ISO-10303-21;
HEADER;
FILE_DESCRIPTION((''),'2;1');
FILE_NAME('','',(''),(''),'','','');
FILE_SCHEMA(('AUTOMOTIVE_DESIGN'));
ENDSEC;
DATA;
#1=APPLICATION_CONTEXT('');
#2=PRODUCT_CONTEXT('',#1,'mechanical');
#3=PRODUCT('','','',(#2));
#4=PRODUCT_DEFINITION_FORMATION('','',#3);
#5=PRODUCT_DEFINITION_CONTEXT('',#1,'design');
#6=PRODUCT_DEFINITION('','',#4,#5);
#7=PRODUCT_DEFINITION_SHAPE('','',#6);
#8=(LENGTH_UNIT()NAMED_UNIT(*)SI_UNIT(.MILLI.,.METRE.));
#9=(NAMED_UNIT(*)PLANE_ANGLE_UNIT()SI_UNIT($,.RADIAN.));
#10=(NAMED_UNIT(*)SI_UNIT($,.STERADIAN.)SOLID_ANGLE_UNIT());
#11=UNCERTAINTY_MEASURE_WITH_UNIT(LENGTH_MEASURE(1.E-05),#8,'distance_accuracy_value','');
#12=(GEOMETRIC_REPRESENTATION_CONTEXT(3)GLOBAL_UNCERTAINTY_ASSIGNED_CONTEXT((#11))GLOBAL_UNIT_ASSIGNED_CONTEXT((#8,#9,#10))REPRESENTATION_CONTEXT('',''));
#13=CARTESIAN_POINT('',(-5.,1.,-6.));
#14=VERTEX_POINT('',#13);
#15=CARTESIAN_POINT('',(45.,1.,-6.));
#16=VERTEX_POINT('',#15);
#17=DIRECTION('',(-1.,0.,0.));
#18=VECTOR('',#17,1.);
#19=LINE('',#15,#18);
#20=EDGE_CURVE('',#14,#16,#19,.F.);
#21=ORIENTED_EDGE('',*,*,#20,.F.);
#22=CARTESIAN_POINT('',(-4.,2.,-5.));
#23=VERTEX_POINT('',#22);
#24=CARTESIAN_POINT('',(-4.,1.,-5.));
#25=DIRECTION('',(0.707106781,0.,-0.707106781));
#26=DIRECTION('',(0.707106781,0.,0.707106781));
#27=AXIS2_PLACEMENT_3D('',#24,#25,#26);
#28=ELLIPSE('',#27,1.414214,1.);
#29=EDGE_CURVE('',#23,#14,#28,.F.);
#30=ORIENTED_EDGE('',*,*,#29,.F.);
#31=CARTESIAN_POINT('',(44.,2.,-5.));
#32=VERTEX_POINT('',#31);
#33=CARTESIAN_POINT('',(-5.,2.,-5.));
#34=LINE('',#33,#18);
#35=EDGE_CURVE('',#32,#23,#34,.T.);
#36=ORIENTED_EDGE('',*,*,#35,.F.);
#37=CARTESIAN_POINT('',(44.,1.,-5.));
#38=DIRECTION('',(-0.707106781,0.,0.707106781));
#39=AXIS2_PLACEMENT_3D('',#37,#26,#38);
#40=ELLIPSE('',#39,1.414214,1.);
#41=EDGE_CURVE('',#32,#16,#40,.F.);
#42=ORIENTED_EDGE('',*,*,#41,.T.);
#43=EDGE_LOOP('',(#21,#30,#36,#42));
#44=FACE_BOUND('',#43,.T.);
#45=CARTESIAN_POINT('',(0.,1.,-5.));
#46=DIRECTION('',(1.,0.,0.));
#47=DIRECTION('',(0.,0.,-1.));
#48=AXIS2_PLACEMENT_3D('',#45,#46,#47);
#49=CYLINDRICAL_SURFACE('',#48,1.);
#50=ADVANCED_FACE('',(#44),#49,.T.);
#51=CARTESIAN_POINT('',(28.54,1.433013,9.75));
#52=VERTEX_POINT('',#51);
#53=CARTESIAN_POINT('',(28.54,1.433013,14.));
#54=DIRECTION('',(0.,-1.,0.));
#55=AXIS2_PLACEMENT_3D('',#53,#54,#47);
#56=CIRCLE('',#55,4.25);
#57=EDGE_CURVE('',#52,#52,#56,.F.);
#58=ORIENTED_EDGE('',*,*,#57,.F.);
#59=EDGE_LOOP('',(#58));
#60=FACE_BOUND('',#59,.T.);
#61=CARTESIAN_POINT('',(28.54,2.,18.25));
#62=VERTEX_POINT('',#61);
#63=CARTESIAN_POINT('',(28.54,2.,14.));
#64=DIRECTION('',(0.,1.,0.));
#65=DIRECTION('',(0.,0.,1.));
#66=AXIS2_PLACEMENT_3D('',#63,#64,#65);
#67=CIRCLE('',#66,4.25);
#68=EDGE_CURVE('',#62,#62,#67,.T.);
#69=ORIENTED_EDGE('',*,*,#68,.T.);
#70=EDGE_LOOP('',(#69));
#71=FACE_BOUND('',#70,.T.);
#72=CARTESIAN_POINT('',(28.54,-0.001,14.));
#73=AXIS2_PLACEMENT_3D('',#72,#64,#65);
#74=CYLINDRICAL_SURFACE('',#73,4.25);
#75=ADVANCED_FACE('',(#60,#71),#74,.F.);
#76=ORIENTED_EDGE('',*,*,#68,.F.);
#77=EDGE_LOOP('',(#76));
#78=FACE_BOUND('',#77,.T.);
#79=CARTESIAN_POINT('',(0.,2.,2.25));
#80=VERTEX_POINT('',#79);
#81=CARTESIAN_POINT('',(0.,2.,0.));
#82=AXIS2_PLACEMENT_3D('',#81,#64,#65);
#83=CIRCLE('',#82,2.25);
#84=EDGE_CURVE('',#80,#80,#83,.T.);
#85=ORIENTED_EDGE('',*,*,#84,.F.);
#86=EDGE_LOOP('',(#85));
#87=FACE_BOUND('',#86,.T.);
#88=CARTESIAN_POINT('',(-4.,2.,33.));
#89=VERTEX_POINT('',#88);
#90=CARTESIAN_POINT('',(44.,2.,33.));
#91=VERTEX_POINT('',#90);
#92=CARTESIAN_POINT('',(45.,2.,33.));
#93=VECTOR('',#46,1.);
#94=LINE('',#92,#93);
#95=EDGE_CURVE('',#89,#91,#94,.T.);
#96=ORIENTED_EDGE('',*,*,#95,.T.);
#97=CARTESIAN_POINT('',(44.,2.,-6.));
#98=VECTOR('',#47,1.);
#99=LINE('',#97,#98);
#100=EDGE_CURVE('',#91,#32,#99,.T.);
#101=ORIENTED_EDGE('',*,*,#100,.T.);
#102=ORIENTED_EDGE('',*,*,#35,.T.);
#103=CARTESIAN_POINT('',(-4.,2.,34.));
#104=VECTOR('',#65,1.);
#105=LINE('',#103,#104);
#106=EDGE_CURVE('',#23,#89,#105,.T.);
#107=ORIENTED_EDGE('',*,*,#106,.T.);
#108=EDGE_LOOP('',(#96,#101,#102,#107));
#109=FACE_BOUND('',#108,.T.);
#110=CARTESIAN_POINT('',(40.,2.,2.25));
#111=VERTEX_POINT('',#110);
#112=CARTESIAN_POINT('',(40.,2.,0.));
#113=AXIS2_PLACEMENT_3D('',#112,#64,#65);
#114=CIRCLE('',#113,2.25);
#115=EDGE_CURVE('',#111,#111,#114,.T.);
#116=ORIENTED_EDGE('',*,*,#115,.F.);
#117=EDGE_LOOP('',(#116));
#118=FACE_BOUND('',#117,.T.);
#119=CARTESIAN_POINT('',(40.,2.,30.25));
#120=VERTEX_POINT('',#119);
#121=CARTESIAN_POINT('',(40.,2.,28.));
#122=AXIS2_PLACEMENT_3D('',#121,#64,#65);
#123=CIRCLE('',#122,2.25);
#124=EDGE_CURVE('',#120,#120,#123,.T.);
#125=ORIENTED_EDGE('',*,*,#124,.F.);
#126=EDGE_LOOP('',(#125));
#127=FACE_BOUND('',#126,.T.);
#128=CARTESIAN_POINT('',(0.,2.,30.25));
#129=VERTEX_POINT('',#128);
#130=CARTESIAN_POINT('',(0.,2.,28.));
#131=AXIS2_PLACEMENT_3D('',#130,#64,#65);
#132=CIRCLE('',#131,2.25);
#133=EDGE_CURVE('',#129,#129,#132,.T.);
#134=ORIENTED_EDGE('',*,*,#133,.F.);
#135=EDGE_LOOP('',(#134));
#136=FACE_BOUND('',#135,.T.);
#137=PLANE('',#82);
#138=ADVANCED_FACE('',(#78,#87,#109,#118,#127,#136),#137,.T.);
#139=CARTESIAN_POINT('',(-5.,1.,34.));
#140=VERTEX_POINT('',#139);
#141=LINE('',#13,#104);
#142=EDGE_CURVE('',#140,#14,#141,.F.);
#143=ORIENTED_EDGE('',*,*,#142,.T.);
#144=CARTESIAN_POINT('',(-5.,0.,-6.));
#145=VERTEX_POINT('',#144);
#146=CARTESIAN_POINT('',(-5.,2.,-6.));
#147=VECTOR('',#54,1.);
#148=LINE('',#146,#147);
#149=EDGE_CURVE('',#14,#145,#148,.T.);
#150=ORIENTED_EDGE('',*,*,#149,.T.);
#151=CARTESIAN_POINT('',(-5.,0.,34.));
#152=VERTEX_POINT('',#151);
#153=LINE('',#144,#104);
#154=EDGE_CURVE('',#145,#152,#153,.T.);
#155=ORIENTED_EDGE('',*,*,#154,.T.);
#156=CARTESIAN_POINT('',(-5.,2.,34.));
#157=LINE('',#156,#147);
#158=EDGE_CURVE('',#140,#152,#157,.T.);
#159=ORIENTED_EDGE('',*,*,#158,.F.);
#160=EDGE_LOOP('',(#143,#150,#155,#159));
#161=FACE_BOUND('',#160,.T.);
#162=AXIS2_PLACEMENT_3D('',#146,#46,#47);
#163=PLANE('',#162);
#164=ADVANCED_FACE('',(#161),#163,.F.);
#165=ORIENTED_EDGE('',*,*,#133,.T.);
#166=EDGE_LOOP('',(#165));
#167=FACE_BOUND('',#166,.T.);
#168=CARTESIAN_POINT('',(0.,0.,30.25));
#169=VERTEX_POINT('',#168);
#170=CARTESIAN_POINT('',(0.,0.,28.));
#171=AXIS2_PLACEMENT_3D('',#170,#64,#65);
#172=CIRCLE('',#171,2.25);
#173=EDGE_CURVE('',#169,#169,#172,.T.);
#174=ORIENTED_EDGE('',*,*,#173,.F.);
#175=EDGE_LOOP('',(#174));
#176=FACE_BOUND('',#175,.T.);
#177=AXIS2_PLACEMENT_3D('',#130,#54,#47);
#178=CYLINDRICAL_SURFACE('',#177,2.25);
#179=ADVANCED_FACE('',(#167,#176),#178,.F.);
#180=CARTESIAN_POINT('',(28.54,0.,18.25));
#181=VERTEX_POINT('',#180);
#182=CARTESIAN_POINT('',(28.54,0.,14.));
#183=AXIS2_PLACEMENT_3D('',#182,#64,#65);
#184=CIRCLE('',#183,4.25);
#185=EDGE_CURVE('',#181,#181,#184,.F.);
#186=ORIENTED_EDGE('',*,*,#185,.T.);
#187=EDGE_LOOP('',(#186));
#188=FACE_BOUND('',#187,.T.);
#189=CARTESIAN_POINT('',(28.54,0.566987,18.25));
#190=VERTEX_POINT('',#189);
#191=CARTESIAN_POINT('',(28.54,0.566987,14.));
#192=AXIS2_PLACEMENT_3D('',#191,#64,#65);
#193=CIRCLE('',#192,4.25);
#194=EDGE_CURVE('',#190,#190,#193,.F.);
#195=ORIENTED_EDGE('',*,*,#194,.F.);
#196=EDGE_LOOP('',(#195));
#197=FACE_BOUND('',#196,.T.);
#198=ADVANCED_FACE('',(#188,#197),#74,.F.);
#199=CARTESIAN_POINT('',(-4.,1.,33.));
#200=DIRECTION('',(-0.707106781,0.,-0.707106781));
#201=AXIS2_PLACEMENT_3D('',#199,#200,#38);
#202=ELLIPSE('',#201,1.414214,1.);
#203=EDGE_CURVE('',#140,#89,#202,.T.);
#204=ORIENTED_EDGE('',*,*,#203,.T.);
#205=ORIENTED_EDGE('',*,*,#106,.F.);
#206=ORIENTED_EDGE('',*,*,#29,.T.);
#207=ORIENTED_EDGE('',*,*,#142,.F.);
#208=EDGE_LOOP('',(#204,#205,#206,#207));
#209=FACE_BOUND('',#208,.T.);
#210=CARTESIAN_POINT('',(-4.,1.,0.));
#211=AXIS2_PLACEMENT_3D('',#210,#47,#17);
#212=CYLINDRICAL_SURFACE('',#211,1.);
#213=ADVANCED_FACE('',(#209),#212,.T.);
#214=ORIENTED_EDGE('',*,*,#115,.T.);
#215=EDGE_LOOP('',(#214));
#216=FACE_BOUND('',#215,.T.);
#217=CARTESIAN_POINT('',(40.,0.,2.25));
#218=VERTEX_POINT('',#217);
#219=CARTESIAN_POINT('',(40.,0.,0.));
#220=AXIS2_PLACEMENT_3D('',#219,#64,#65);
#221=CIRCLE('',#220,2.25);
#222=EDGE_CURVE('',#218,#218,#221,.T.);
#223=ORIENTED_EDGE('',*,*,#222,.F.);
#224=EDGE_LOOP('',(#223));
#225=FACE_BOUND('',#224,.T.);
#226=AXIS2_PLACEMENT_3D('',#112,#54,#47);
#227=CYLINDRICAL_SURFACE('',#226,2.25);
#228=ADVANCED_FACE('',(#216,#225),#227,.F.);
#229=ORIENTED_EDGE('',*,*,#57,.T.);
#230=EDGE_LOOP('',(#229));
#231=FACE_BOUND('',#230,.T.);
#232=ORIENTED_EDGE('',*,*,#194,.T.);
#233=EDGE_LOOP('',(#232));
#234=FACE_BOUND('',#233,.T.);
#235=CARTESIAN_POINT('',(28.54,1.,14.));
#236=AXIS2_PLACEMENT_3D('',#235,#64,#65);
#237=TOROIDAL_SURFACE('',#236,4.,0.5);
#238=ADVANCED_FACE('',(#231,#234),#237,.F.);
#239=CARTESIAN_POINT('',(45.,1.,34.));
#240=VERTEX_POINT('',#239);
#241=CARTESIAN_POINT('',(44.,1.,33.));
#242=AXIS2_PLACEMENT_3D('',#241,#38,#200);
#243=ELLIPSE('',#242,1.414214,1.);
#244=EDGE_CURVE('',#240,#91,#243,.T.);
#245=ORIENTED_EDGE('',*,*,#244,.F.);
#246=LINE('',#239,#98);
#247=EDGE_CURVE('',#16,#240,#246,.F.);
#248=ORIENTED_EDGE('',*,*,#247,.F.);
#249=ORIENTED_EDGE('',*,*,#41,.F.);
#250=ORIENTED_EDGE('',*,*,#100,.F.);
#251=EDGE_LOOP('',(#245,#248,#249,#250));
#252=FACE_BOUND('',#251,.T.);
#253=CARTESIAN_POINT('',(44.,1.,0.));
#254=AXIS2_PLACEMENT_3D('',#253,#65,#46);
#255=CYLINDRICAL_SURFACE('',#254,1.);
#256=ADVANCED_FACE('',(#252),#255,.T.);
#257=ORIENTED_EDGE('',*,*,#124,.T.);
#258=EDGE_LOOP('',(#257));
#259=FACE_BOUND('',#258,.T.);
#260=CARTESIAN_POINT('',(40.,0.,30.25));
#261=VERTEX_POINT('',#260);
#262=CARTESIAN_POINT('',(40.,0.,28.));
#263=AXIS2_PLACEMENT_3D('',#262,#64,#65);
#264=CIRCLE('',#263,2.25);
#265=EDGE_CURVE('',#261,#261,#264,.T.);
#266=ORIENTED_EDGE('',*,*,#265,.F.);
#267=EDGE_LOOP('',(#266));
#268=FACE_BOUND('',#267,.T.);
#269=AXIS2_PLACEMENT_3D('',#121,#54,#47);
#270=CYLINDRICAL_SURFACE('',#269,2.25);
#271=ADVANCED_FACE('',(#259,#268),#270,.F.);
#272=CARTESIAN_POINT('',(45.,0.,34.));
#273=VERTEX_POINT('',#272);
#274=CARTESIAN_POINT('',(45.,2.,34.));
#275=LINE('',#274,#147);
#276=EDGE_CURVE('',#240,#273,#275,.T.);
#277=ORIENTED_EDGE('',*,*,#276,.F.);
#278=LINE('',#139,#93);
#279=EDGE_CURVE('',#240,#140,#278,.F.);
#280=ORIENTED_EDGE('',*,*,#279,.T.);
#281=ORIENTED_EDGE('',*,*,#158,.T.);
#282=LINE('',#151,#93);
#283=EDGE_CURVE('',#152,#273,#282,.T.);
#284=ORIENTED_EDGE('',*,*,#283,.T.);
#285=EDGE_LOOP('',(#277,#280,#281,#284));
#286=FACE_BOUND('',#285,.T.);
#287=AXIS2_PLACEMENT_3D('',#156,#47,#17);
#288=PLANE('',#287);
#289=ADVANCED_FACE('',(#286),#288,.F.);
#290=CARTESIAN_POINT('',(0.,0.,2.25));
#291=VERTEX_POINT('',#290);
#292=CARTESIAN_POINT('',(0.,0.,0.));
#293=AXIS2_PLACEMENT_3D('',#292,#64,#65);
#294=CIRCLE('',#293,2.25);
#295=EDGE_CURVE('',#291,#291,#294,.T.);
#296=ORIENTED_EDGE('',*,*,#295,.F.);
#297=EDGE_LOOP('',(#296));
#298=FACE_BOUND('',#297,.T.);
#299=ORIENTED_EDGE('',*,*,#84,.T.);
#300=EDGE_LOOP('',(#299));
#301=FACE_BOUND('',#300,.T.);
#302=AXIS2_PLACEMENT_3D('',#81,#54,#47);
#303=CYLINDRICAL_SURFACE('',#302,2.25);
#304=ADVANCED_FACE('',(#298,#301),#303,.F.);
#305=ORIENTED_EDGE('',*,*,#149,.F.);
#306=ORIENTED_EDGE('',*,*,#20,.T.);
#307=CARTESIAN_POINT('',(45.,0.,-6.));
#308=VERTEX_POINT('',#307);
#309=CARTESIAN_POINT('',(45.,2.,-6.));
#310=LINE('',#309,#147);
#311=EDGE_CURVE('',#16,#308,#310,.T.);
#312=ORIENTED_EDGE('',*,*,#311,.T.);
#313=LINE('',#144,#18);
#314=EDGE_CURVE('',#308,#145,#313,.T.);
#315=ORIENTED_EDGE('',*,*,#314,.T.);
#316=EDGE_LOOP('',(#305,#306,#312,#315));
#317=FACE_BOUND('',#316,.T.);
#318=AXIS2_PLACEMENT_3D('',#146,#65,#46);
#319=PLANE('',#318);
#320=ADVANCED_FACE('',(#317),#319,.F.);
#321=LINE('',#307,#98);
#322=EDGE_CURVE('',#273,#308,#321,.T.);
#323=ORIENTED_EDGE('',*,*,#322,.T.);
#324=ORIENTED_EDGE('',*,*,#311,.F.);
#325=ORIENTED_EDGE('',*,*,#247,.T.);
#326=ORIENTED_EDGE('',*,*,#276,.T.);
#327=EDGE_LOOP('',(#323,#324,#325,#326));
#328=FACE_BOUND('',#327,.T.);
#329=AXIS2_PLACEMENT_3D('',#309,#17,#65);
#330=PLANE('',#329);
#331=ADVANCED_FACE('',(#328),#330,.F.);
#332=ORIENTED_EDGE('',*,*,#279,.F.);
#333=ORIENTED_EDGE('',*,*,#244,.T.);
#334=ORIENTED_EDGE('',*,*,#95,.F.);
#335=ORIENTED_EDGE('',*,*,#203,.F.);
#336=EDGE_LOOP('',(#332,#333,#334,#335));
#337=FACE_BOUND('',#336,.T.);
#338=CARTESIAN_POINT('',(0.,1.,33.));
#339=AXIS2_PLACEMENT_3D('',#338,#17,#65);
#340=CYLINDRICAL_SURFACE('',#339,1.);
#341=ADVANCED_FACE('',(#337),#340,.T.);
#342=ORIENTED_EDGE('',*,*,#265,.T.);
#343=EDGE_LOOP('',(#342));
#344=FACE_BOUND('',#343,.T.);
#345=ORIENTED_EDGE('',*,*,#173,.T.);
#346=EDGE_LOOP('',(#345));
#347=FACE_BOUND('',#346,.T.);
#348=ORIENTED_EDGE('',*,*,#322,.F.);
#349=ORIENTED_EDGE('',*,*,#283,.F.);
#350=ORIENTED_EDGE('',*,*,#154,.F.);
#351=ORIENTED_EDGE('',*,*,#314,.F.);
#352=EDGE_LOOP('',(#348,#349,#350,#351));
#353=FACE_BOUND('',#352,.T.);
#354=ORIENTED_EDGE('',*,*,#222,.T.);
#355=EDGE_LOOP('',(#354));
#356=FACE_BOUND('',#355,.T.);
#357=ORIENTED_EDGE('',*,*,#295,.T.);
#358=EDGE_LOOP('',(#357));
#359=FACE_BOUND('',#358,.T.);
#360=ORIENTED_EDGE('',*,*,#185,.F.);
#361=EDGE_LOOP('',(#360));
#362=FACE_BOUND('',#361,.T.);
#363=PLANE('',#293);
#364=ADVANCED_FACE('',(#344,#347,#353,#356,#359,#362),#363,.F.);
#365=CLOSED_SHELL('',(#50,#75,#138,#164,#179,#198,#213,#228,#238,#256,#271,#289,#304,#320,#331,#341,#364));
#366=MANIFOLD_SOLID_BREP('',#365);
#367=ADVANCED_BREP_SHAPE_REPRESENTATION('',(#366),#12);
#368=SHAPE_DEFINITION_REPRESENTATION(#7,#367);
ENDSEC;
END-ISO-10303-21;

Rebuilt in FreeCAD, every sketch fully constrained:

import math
import FreeCAD as App
import Part
import Sketcher
from FreeCAD import Vector


def edges_at(feature, points):
    """Names of the edges that pass closest to the given points."""
    edges = feature.Shape.Edges
    near = lambda p: min(range(len(edges)), key=lambda i: edges[i].distToShape(Part.Vertex(*p))[0])
    return sorted({f"Edge{near(p) + 1}" for p in points})


def add_polygon(sketch, points):
    """Adds a closed chain of lines whose ends are joined by coincident constraints."""
    first, n = sketch.GeometryCount, len(points)
    for a, b in zip(points, points[1:] + points[:1]):
        sketch.addGeometry(Part.LineSegment(App.Vector(*a, 0), App.Vector(*b, 0)), False)
    for i in range(n):
        sketch.addConstraint(Sketcher.Constraint("Coincident", first + i, 2, first + (i + 1) % n, 1))

doc = App.newDocument("Part")
body = doc.addObject("PartDesign::Body", "Body")

# Sketch on XZ plane
sketch1 = body.newObject("Sketcher::SketchObject", "Sketch")
sketch1.AttachmentSupport = (doc.getObject("XZ_Plane"), [""])
sketch1.MapMode = "FlatFace"
add_polygon(sketch1, [(-5, -6), (-5, 34), (45, 34), (45, -6)])  # lines 0-3
sketch1.addGeometry(Part.Circle(Vector(0, 28, 0), Vector(0, 0, 1), 2.2), False)  # 4
sketch1.addGeometry(Part.Circle(Vector(40, 28, 0), Vector(0, 0, 1), 2.2), False)  # 5
sketch1.addGeometry(Part.Circle(Vector(0, 0, 0), Vector(0, 0, 1), 2.2), False)  # 6
sketch1.addGeometry(Part.Circle(Vector(40, 0, 0), Vector(0, 0, 1), 2.2), False)  # 7
sketch1.addConstraint(Sketcher.Constraint("Vertical", 0))
sketch1.addConstraint(Sketcher.Constraint("Horizontal", 1))
sketch1.addConstraint(Sketcher.Constraint("Vertical", 2))
sketch1.addConstraint(Sketcher.Constraint("Horizontal", 3))
sketch1.addConstraint(Sketcher.Constraint("Coincident", 6, 3, -1, 1))
sketch1.addConstraint(Sketcher.Constraint("Equal", 4, 5))
sketch1.addConstraint(Sketcher.Constraint("Equal", 5, 6))
sketch1.addConstraint(Sketcher.Constraint("Equal", 6, 7))
sketch1.addConstraint(Sketcher.Constraint("PointOnObject", 4, 3, -2))
sketch1.addConstraint(Sketcher.Constraint("PointOnObject", 7, 3, -1))
sketch1.addConstraint(Sketcher.Constraint("Horizontal", 4, 3, 5, 3))
sketch1.addConstraint(Sketcher.Constraint("Vertical", 5, 3, 7, 3))
sketch1.addConstraint(Sketcher.Constraint("Diameter", 4, 4.5))
sketch1.addConstraint(Sketcher.Constraint("DistanceX", 1, 1, 1, 2, 50.0))
sketch1.addConstraint(Sketcher.Constraint("DistanceY", 0, 1, 0, 2, 40.0))
sketch1.addConstraint(Sketcher.Constraint("DistanceY", -1, 1, 4, 3, 28.0))
sketch1.addConstraint(Sketcher.Constraint("DistanceX", -1, 1, 5, 3, 40.0))
sketch1.addConstraint(Sketcher.Constraint("DistanceX", 0, 2, -1, 1, 5.0))
sketch1.addConstraint(Sketcher.Constraint("DistanceY", -1, 1, 0, 2, 34.0))
pad1 = body.newObject("PartDesign::Pad", "Pad")
pad1.Profile = sketch1
pad1.Length = 2
pad1.Reversed = True

# Sketch on XZ plane
sketch2 = body.newObject("Sketcher::SketchObject", "Sketch001")
sketch2.AttachmentSupport = (doc.getObject("XZ_Plane"), [""])
sketch2.MapMode = "FlatFace"
sketch2.AttachmentOffset = App.Placement(Vector(0, 0, -2), App.Rotation())
sketch2.addGeometry(Part.Circle(Vector(28.5, 14, 0), Vector(0, 0, 1), 4.2), False)
sketch2.addConstraint(Sketcher.Constraint("Diameter", 0, 8.5))
sketch2.addConstraint(Sketcher.Constraint("DistanceY", -1, 1, 0, 3, 14.0))
sketch2.addConstraint(Sketcher.Constraint("DistanceX", -1, 1, 0, 3, 28.54))
pocket1 = body.newObject("PartDesign::Pocket", "Pocket")
pocket1.Profile = sketch2
pocket1.Type = "UpToFirst"
pocket1.Reversed = True

# Sketch on XY plane
sketch3 = body.newObject("Sketcher::SketchObject", "Sketch002")
sketch3.AttachmentSupport = (doc.getObject("XY_Plane"), [""])
sketch3.MapMode = "FlatFace"
sketch3.AttachmentOffset = App.Placement(Vector(0, 0, 14), App.Rotation())
sketch3.addGeometry(Part.LineSegment(Vector(24.5, 1.5, 0), Vector(24.5, 0.5, 0)), False)
sketch3.addGeometry(Part.ArcOfCircle(Part.Circle(Vector(24.5, 1, 0), Vector(0, 0, 1), 0.5), math.radians(90), math.radians(270)), False)
sketch3.addGeometry(Part.LineSegment(Vector(28.5, 1.5, 0), Vector(28.5, 0.5, 0)), True)  # axis
sketch3.addConstraint(Sketcher.Constraint("Coincident", 0, 1, 1, 1))
sketch3.addConstraint(Sketcher.Constraint("Coincident", 1, 2, 0, 2))
sketch3.addConstraint(Sketcher.Constraint("Vertical", 0))
sketch3.addConstraint(Sketcher.Constraint("Vertical", 2))
sketch3.addConstraint(Sketcher.Constraint("Horizontal", 0, 1, 2, 1))
sketch3.addConstraint(Sketcher.Constraint("Horizontal", 1, 2, 2, 2))
sketch3.addConstraint(Sketcher.Constraint("Vertical", 1, 3, 0, 1))
sketch3.addConstraint(Sketcher.Constraint("Radius", 1, 0.5))
sketch3.addConstraint(Sketcher.Constraint("DistanceY", -1, 1, 1, 3, 1.0))
sketch3.addConstraint(Sketcher.Constraint("DistanceX", 0, 1, 2, 1, 4.0))
sketch3.addConstraint(Sketcher.Constraint("DistanceX", -1, 1, 1, 3, 24.54))
groove = body.newObject("PartDesign::Groove", "Groove")
groove.Profile = sketch3
groove.ReferenceAxis = (sketch3, ["Axis0"])
groove.Angle = 360
doc.recompute()

fillet = body.newObject("PartDesign::Fillet", "Fillet")
fillet.Base = (groove, edges_at(groove, [
    (45, 2, 14),
    (20, 2, -6),
    (-5, 2, 14),
    (20, 2, 34),
]))
fillet.Radius = 1

doc.recompute()
